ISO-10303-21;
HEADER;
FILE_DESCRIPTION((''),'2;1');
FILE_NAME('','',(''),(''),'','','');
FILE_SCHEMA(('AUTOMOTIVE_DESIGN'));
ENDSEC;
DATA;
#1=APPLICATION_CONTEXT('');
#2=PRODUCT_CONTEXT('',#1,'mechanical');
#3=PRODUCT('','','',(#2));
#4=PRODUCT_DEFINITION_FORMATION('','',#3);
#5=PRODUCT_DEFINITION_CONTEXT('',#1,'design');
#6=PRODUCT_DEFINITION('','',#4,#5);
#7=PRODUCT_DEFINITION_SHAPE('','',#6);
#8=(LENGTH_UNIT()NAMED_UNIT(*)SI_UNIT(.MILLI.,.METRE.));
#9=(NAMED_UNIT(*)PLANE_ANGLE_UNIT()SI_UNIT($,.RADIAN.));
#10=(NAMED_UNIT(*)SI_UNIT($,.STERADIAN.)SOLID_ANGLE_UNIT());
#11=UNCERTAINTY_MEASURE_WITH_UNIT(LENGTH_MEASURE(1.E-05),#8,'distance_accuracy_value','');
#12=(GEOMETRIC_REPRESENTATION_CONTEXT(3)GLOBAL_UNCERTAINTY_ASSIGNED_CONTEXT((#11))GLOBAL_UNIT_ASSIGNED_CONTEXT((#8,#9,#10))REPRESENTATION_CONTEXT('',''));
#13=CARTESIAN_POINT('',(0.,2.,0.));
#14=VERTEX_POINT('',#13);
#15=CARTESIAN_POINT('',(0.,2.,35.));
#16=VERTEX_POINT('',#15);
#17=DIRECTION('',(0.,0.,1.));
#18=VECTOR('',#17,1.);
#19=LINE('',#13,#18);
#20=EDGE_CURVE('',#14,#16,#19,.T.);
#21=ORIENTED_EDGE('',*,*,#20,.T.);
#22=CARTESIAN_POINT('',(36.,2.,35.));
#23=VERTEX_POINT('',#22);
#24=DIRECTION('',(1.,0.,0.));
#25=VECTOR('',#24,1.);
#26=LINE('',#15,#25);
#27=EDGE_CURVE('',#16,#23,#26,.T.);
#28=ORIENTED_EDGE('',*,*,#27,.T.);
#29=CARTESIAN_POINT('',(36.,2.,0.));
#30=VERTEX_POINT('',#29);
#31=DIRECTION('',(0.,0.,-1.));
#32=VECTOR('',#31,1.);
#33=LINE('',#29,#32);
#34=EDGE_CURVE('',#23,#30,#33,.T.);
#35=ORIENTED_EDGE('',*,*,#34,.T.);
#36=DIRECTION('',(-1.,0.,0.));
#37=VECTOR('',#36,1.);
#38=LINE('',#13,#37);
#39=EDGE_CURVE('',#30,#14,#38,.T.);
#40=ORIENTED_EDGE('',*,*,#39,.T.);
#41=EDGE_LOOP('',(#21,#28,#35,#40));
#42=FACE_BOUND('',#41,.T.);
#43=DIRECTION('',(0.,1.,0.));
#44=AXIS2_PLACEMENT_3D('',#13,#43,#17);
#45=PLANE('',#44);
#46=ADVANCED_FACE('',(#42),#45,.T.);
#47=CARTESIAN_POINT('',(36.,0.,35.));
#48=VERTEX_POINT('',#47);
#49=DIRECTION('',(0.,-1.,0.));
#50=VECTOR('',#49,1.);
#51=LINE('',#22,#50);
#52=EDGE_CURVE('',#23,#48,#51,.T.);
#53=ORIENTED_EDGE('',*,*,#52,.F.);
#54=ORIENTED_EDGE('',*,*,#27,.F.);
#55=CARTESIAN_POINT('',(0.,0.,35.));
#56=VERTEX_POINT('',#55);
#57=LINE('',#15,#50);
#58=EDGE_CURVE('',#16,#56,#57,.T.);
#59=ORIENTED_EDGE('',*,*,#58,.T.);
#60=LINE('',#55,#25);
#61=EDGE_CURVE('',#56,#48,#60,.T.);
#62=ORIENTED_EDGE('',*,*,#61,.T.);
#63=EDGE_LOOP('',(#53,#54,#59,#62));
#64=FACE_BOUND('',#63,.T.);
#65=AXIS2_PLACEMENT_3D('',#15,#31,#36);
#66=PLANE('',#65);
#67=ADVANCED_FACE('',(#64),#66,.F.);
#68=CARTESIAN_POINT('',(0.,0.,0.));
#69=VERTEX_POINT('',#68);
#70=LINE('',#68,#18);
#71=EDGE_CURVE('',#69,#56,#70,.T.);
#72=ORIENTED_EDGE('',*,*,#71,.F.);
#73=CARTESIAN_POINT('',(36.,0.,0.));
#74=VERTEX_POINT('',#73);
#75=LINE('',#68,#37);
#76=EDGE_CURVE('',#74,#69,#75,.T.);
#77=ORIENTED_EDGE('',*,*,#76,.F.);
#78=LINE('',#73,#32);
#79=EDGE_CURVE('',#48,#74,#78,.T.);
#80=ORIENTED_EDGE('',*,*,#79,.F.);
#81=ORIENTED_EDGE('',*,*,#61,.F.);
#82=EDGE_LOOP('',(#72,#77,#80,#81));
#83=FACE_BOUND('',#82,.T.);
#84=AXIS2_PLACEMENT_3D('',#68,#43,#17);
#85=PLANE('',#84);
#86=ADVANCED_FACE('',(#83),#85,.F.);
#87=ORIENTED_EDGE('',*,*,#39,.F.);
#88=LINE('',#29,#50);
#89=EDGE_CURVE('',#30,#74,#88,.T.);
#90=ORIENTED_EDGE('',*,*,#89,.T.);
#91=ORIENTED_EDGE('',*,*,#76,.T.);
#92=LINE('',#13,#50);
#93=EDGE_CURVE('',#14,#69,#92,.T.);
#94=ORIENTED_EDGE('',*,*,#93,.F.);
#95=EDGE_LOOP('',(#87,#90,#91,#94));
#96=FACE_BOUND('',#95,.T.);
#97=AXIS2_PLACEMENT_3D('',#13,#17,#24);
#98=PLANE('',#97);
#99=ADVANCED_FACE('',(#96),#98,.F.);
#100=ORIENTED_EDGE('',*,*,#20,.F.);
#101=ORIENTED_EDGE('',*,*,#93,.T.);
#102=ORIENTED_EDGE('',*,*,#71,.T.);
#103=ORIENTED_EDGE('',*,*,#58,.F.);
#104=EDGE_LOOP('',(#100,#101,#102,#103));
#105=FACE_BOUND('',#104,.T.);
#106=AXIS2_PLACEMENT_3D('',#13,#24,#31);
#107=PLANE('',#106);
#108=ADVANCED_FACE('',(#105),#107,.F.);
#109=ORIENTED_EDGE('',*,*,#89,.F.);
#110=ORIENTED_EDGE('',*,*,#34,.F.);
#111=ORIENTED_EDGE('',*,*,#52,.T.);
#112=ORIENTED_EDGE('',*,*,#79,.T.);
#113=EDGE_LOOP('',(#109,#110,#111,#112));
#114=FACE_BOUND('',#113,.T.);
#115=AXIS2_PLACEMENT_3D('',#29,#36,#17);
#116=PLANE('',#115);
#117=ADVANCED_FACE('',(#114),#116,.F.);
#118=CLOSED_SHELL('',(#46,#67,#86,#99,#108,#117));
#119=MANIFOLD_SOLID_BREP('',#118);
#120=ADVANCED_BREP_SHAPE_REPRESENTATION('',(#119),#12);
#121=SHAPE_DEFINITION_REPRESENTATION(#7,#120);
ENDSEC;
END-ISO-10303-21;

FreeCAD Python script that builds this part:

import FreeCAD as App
import Part
import Sketcher
Q = App.Units.Quantity

doc = App.newDocument("Part")
params = doc.addObject("Spreadsheet::Sheet", "Params")
for row, (alias, value) in enumerate([
    ("sketch1_width", "36 mm"),
    ("sketch1_height", "35 mm"),
    ("pad1_length", "2 mm"),
], start=1):
    params.set(f"A{row}", alias)
    params.set(f"B{row}", "=" + value)
    params.setAlias(f"B{row}", alias)

body = doc.addObject("PartDesign::Body", "Body")

# Sketch on XZ plane
sketch1 = body.newObject("Sketcher::SketchObject", "Sketch")
sketch1.AttachmentSupport = (doc.getObject("XZ_Plane"), [""])
sketch1.MapMode = "FlatFace"
sketch1.addGeometry([
    Part.LineSegment(App.Vector(0, 0, 0), App.Vector(0, 35, 0)),
    Part.LineSegment(App.Vector(0, 35, 0), App.Vector(36, 35, 0)),
    Part.LineSegment(App.Vector(36, 35, 0), App.Vector(36, 0, 0)),
    Part.LineSegment(App.Vector(36, 0, 0), App.Vector(0, 0, 0)),
], False)
sketch1.addConstraint([
    Sketcher.Constraint("Coincident", 0, 2, 1, 1),
    Sketcher.Constraint("Coincident", 1, 2, 2, 1),
    Sketcher.Constraint("Coincident", 2, 2, 3, 1),
    Sketcher.Constraint("Coincident", 3, 2, 0, 1),
    Sketcher.Constraint("Vertical", 0),
    Sketcher.Constraint("Horizontal", 1),
    Sketcher.Constraint("Vertical", 2),
    Sketcher.Constraint("Horizontal", 3),
    Sketcher.Constraint("Coincident", 3, 2, -1, 1),
    Sketcher.Constraint("DistanceX", 1, 1, 1, 2, Q("36 mm")),
    Sketcher.Constraint("DistanceY", 0, 1, 0, 2, Q("35 mm")),
])
sketch1.setExpression("Constraints[9]", "Params.sketch1_width")
sketch1.setExpression("Constraints[10]", "Params.sketch1_height")
pad1 = body.newObject("PartDesign::Pad", "Pad")
pad1.Profile = sketch1
pad1.setExpression("Length", "Params.pad1_length")
pad1.Reversed = True

doc.recompute()
